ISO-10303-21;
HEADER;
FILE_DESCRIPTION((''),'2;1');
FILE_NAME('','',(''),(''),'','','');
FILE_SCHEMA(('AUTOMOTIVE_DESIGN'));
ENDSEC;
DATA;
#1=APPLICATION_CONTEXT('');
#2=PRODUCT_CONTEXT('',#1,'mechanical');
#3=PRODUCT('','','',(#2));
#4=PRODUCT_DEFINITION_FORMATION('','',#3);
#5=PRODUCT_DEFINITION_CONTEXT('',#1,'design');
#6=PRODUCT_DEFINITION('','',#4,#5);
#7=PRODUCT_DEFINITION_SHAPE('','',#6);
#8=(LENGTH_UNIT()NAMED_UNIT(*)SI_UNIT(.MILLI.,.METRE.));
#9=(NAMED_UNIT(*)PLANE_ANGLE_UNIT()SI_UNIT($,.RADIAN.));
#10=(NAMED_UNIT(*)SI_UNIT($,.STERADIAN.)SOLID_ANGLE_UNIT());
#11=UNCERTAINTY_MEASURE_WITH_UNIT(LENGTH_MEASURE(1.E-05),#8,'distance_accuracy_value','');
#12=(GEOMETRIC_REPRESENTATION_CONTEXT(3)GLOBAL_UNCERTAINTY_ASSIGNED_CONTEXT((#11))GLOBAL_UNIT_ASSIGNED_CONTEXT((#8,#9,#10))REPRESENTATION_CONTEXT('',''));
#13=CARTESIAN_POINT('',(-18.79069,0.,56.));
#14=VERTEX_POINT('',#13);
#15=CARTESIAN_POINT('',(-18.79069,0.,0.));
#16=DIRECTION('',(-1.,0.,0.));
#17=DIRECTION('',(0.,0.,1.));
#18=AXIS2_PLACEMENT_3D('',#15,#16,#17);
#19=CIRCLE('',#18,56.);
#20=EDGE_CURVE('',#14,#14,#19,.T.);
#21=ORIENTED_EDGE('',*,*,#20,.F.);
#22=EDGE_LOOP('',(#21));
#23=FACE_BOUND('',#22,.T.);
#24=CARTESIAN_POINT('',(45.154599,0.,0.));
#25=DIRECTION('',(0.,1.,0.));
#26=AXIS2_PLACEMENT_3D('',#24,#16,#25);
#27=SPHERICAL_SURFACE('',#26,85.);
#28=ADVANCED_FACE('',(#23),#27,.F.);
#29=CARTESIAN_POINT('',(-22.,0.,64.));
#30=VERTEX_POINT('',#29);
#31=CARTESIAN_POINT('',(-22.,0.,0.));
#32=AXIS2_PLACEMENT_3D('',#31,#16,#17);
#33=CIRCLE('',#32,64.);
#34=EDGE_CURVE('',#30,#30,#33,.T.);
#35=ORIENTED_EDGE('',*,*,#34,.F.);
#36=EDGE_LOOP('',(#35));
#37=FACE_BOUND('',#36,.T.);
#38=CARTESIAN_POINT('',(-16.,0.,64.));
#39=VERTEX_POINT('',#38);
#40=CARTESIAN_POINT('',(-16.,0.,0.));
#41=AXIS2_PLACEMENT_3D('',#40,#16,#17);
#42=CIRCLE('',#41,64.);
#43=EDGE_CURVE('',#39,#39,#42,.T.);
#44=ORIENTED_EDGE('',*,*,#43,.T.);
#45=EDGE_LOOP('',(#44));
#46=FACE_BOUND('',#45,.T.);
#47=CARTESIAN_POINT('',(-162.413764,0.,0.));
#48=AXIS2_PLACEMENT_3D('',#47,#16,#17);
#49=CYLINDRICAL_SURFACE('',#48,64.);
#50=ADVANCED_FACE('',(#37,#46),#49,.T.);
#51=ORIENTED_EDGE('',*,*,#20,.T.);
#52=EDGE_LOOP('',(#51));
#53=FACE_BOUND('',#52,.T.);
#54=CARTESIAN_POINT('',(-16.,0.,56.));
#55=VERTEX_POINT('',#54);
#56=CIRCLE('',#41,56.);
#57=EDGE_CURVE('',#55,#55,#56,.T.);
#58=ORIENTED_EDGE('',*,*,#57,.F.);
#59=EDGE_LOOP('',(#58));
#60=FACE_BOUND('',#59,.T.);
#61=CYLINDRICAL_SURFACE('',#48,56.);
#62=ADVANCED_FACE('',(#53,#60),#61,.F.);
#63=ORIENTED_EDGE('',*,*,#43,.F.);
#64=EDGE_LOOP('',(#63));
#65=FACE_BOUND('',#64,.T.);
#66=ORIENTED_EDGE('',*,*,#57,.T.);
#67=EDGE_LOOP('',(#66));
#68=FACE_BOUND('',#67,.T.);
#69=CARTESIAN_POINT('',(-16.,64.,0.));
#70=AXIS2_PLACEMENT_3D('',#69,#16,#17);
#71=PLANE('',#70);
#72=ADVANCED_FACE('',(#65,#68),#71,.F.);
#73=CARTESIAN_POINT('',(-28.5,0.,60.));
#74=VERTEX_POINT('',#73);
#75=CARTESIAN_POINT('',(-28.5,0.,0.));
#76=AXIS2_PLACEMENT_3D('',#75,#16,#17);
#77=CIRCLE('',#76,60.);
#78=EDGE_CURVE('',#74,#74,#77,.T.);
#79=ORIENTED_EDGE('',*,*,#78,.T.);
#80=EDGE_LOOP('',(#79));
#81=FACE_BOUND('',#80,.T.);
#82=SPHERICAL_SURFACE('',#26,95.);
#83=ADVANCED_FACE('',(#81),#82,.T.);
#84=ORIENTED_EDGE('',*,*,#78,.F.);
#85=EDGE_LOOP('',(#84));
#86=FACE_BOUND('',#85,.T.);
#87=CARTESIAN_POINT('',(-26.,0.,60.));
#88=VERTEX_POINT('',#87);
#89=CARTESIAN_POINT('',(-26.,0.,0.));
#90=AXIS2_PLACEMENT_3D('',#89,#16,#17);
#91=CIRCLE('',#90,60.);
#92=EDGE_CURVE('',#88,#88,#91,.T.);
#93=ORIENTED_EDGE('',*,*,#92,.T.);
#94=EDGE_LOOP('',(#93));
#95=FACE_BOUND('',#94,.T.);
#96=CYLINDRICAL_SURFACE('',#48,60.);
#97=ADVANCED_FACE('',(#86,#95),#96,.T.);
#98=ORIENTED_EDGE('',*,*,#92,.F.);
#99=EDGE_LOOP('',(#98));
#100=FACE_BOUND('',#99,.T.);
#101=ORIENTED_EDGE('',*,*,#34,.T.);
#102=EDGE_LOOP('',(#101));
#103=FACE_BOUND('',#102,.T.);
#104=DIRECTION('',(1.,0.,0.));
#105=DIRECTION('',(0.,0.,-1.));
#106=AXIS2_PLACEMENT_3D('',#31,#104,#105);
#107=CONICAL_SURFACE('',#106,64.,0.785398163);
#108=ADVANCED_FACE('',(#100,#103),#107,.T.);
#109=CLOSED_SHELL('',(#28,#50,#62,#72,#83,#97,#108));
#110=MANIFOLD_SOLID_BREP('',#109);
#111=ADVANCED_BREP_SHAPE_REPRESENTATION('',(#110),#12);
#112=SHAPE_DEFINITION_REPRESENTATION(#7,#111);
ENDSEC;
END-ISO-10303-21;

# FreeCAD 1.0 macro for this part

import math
import FreeCAD as App
import Part
import Sketcher

V = App.Vector
Q = App.Units.Quantity

doc = App.newDocument("Part")
body = doc.addObject("PartDesign::Body", "Body")

sketch1 = body.newObject("Sketcher::SketchObject", "Sketch")
sketch1.AttachmentSupport = (doc.getObject("XY_Plane"), [""])
sketch1.MapMode = "FlatFace"
sketch1.addGeometry(Part.LineSegment(V(-26, 60, 0), V(-28.5, 60, 0)), False)
sketch1.addGeometry(Part.ArcOfCircle(Part.Circle(V(45.2, 0, 0), V(0, 0, 1), 95), math.radians(141), math.radians(180)), False)
sketch1.addGeometry(Part.LineSegment(V(-49.8, 0, 0), V(-39.8, 0, 0)), False)
sketch1.addGeometry(Part.ArcOfCircle(Part.Circle(V(45.2, 0, 0), V(0, 0, 1), 85), math.radians(139), math.radians(180)), False)
sketch1.addGeometry(Part.LineSegment(V(-18.8, 56, 0), V(-16, 56, 0)), False)
sketch1.addGeometry(Part.LineSegment(V(-16, 56, 0), V(-16, 64, 0)), False)
sketch1.addGeometry(Part.LineSegment(V(-16, 64, 0), V(-22, 64, 0)), False)
sketch1.addGeometry(Part.LineSegment(V(-22, 64, 0), V(-26, 60, 0)), False)
sketch1.addConstraint(Sketcher.Constraint("Coincident", 0, 2, 1, 1))
sketch1.addConstraint(Sketcher.Constraint("Coincident", 1, 2, 2, 1))
sketch1.addConstraint(Sketcher.Constraint("Coincident", 2, 2, 3, 2))
sketch1.addConstraint(Sketcher.Constraint("Coincident", 3, 1, 4, 1))
sketch1.addConstraint(Sketcher.Constraint("Coincident", 4, 2, 5, 1))
sketch1.addConstraint(Sketcher.Constraint("Coincident", 5, 2, 6, 1))
sketch1.addConstraint(Sketcher.Constraint("Coincident", 6, 2, 7, 1))
sketch1.addConstraint(Sketcher.Constraint("Coincident", 7, 2, 0, 1))
sketch1.addConstraint(Sketcher.Constraint("Horizontal", 0))
sketch1.addConstraint(Sketcher.Constraint("Horizontal", 2))
sketch1.addConstraint(Sketcher.Constraint("Horizontal", 4))
sketch1.addConstraint(Sketcher.Constraint("Vertical", 5))
sketch1.addConstraint(Sketcher.Constraint("Horizontal", 6))
sketch1.addConstraint(Sketcher.Constraint("Coincident", 3, 3, 1, 3))
sketch1.addConstraint(Sketcher.Constraint("PointOnObject", 1, 3, -1))
sketch1.addConstraint(Sketcher.Constraint("PointOnObject", 1, 2, -1))
sketch1.addConstraint(Sketcher.Constraint("Radius", 1, Q("95 mm")))
sketch1.addConstraint(Sketcher.Constraint("Radius", 3, Q("85 mm")))
sketch1.addConstraint(Sketcher.Constraint("DistanceX", 6, 2, 6, 1, Q("6 mm")))
sketch1.addConstraint(Sketcher.Constraint("DistanceY", 5, 1, 5, 2, Q("8 mm")))
sketch1.addConstraint(Sketcher.Constraint("Angle", 7, Q("-135 deg")))
sketch1.addConstraint(Sketcher.Constraint("DistanceX", 0, 2, 0, 1, Q("2.5 mm")))
sketch1.addConstraint(Sketcher.Constraint("DistanceY", -1, 1, 0, 2, Q("60 mm")))
sketch1.addConstraint(Sketcher.Constraint("DistanceY", -1, 1, 3, 1, Q("56 mm")))
sketch1.addConstraint(Sketcher.Constraint("DistanceX", 4, 2, -1, 1, Q("16 mm")))
revolution = body.newObject("PartDesign::Revolution", "Revolution")
revolution.Profile = sketch1
revolution.ReferenceAxis = (sketch1, ["H_Axis"])
revolution.Angle = 360

doc.recompute()
